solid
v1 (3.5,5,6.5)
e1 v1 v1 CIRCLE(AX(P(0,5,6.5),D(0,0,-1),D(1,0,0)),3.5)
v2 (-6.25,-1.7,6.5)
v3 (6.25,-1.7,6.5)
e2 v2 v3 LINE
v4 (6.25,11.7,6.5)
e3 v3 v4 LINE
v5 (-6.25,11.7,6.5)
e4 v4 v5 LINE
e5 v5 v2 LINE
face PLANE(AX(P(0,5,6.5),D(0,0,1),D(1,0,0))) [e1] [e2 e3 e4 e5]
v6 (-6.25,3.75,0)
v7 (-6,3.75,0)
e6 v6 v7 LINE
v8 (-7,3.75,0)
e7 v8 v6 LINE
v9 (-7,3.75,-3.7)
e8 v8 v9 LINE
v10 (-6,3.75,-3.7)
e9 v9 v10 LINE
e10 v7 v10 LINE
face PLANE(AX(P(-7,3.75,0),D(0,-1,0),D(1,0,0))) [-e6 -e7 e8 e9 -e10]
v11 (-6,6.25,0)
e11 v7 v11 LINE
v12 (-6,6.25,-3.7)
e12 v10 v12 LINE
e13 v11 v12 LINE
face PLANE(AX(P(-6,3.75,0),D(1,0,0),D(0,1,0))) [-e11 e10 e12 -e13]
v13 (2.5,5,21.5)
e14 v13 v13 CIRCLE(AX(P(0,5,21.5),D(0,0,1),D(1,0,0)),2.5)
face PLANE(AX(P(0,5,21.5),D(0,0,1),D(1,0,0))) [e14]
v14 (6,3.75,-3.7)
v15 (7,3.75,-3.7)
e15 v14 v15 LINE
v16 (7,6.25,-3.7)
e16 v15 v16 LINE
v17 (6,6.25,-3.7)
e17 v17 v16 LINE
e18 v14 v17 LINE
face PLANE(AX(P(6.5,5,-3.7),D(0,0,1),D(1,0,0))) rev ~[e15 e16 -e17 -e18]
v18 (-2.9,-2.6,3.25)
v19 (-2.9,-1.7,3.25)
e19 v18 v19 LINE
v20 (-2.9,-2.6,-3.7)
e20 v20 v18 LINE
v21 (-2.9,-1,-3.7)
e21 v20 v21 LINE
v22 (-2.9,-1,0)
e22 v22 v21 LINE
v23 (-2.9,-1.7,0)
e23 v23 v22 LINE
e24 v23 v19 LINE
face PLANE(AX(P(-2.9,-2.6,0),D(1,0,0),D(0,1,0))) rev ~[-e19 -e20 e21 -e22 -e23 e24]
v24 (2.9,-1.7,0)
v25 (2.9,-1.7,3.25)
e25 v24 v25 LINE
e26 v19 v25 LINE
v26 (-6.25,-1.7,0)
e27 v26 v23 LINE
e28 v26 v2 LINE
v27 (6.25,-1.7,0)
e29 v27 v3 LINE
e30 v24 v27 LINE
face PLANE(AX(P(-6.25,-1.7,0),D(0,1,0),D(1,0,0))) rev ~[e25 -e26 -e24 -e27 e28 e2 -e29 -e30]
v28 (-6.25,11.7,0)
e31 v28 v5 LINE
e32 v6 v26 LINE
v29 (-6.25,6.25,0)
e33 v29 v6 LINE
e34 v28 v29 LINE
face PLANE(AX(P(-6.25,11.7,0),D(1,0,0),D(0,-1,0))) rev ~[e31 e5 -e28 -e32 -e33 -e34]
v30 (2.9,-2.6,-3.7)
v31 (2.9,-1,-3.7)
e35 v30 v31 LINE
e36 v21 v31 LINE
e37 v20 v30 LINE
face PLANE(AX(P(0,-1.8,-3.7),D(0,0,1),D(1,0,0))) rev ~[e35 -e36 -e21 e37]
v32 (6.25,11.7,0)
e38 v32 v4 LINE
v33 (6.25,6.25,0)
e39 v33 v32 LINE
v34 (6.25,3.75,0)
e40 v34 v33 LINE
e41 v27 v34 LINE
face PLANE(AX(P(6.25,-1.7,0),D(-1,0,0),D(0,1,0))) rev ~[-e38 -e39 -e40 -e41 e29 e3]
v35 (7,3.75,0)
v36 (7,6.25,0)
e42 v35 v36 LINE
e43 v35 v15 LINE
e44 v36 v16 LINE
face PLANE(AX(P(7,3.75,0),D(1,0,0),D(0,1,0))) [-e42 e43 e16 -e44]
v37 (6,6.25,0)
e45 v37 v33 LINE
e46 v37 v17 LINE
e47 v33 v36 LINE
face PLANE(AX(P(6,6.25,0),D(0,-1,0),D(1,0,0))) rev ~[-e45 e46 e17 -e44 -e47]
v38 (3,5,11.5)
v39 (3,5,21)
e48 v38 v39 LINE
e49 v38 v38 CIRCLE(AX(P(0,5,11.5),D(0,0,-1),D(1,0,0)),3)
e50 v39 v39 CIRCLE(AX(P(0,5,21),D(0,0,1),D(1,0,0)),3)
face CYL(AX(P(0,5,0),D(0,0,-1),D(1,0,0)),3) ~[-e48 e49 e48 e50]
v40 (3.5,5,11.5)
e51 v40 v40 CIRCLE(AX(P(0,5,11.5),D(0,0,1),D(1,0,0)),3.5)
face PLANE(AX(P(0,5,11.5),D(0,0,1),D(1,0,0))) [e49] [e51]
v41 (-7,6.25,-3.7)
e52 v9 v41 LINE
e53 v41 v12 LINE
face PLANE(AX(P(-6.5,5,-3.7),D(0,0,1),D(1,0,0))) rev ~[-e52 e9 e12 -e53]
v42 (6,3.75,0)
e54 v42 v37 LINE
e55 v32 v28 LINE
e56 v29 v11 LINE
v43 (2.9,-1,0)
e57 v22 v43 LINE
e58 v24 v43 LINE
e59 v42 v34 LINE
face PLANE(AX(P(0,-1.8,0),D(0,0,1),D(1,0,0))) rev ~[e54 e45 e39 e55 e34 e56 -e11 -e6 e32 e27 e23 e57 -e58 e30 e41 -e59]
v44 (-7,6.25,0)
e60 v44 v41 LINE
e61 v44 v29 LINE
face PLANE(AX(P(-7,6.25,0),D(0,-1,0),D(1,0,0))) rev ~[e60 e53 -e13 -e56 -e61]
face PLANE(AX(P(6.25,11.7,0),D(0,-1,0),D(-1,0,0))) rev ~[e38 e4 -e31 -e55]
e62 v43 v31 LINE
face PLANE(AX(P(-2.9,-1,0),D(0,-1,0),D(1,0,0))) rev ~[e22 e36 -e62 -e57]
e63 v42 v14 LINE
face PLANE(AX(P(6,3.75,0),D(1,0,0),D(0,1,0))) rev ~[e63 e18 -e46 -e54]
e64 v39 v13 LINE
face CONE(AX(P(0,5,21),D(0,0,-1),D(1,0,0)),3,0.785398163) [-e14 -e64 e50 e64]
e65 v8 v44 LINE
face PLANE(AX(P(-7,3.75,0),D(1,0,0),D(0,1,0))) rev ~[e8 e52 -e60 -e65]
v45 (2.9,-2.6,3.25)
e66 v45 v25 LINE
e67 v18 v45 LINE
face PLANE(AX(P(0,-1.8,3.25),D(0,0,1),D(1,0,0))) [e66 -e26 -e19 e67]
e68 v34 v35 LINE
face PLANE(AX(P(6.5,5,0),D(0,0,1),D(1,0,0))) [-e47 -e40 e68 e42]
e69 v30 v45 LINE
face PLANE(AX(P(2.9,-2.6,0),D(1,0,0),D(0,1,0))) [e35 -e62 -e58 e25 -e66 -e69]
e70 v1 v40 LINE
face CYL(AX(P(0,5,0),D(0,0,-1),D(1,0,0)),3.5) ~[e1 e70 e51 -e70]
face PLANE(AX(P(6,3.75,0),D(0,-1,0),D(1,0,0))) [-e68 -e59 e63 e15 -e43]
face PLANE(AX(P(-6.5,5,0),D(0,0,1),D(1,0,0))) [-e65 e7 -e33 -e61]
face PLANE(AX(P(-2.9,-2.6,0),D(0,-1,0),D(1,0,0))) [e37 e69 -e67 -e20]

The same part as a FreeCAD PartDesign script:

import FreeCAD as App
import Part
import Sketcher
from FreeCAD import Vector


def edges_at(feature, points):
    """Names of the edges that pass closest to the given points."""
    edges = feature.Shape.Edges
    near = lambda p: min(range(len(edges)), key=lambda i: edges[i].distToShape(Part.Vertex(*p))[0])
    return sorted({f"Edge{near(p) + 1}" for p in points})


def add_polygon(sketch, points):
    """Adds a closed chain of lines whose ends are joined by coincident constraints."""
    first, n = sketch.GeometryCount, len(points)
    for a, b in zip(points, points[1:] + points[:1]):
        sketch.addGeometry(Part.LineSegment(App.Vector(*a, 0), App.Vector(*b, 0)), False)
    for i in range(n):
        sketch.addConstraint(Sketcher.Constraint("Coincident", first + i, 2, first + (i + 1) % n, 1))

doc = App.newDocument("Part")
body = doc.addObject("PartDesign::Body", "Body")

sketch1 = body.newObject("Sketcher::SketchObject", "Sketch")
sketch1.AttachmentSupport = (doc.getObject("XY_Plane"), [""])
sketch1.MapMode = "FlatFace"
add_polygon(sketch1, [(-6, 12), (-6, -2), (6, -2), (6, 12)])
sketch1.addConstraint(Sketcher.Constraint("Vertical", 0))
sketch1.addConstraint(Sketcher.Constraint("Horizontal", 1))
sketch1.addConstraint(Sketcher.Constraint("Vertical", 2))
sketch1.addConstraint(Sketcher.Constraint("Horizontal", 3))
sketch1.addConstraint(Sketcher.Constraint("DistanceX", 1, 1, 1, 2, 12.5))
sketch1.addConstraint(Sketcher.Constraint("DistanceY", 0, 2, 0, 1, 13.4))
sketch1.addConstraint(Sketcher.Constraint("DistanceY", 0, 2, -1, 1, 1.7))
sketch1.addConstraint(Sketcher.Constraint("DistanceX", 0, 2, -1, 1, 6.25))
pad1 = body.newObject("PartDesign::Pad", "Pad")
pad1.Profile = sketch1
pad1.Length = 6.5

sketch2 = body.newObject("Sketcher::SketchObject", "Sketch001")
sketch2.AttachmentSupport = (doc.getObject("XY_Plane"), [""])
sketch2.MapMode = "FlatFace"
sketch2.addGeometry(Part.Circle(Vector(0, 5, 0), Vector(0, 0, 1), 3.5), False)
sketch2.addConstraint(Sketcher.Constraint("PointOnObject", 0, 3, -2))
sketch2.addConstraint(Sketcher.Constraint("Diameter", 0, 7.0))
sketch2.addConstraint(Sketcher.Constraint("DistanceY", -1, 1, 0, 3, 5.0))
pad2 = body.newObject("PartDesign::Pad", "Pad001")
pad2.Profile = sketch2
pad2.Length = 11.5

sketch3 = body.newObject("Sketcher::SketchObject", "Sketch002")
sketch3.AttachmentSupport = (doc.getObject("XY_Plane"), [""])
sketch3.MapMode = "FlatFace"
sketch3.addGeometry(Part.Circle(Vector(0, 5, 0), Vector(0, 0, 1), 3), False)
sketch3.addConstraint(Sketcher.Constraint("PointOnObject", 0, 3, -2))
sketch3.addConstraint(Sketcher.Constraint("Diameter", 0, 6.0))
sketch3.addConstraint(Sketcher.Constraint("DistanceY", -1, 1, 0, 3, 5.0))
pad3 = body.newObject("PartDesign::Pad", "Pad002")
pad3.Profile = sketch3
pad3.Length = 21.5
doc.recompute()

chamfer = body.newObject("PartDesign::Chamfer", "Chamfer")
chamfer.Base = (pad3, edges_at(pad3, [(-3, 5, 21.5)]))
chamfer.Size = 0.5

sketch4 = body.newObject("Sketcher::SketchObject", "Sketch003")
sketch4.AttachmentSupport = (doc.getObject("XY_Plane"), [""])
sketch4.MapMode = "FlatFace"
add_polygon(sketch4, [(-7, 6.2), (-7, 3.8), (-6, 3.8), (-6, 6.2)])
add_polygon(sketch4, [(6, 6.2), (6, 3.8), (7, 3.8), (7, 6.2)])
sketch4.addConstraint(Sketcher.Constraint("Vertical", 0))
sketch4.addConstraint(Sketcher.Constraint("Horizontal", 1))
sketch4.addConstraint(Sketcher.Constraint("Vertical", 2))
sketch4.addConstraint(Sketcher.Constraint("Horizontal", 3))
sketch4.addConstraint(Sketcher.Constraint("Vertical", 4))
sketch4.addConstraint(Sketcher.Constraint("Horizontal", 5))
sketch4.addConstraint(Sketcher.Constraint("Vertical", 6))
sketch4.addConstraint(Sketcher.Constraint("Horizontal", 7))
sketch4.addConstraint(Sketcher.Constraint("Symmetric", 1, 2, 4, 2, -2))
sketch4.addConstraint(Sketcher.Constraint("Symmetric", 3, 2, 6, 2, -2))
sketch4.addConstraint(Sketcher.Constraint("DistanceX", 1, 1, 1, 2, 1.0))
sketch4.addConstraint(Sketcher.Constraint("DistanceY", 0, 2, 0, 1, 2.5))
sketch4.addConstraint(Sketcher.Constraint("DistanceX", 0, 2, -1, 1, 7.0))
sketch4.addConstraint(Sketcher.Constraint("DistanceY", -1, 1, 0, 2, 3.75))
pad4 = body.newObject("PartDesign::Pad", "Pad003")
pad4.Profile = sketch4
pad4.Length = 3.7
pad4.Reversed = True

sketch5 = body.newObject("Sketcher::SketchObject", "Sketch004")
sketch5.AttachmentSupport = (doc.getObject("XY_Plane"), [""])
sketch5.MapMode = "FlatFace"
add_polygon(sketch5, [(-2.9, -1), (-2.9, -2.6), (2.9, -2.6), (2.9, -1)])
sketch5.addConstraint(Sketcher.Constraint("Vertical", 0))
sketch5.addConstraint(Sketcher.Constraint("Horizontal", 1))
sketch5.addConstraint(Sketcher.Constraint("Vertical", 2))
sketch5.addConstraint(Sketcher.Constraint("Horizontal", 3))
sketch5.addConstraint(Sketcher.Constraint("DistanceX", 1, 1, 1, 2, 5.8))
sketch5.addConstraint(Sketcher.Constraint("DistanceY", 0, 2, 0, 1, 1.6))
sketch5.addConstraint(Sketcher.Constraint("DistanceY", 2, 2, -1, 1, 1.0))
sketch5.addConstraint(Sketcher.Constraint("DistanceX", 0, 2, -1, 1, 2.9))
pad5 = body.newObject("PartDesign::Pad", "Pad004")
pad5.Profile = sketch5
pad5.Type = "TwoLengths"
pad5.Length = 3.25
pad5.Length2 = 3.7

doc.recompute()
